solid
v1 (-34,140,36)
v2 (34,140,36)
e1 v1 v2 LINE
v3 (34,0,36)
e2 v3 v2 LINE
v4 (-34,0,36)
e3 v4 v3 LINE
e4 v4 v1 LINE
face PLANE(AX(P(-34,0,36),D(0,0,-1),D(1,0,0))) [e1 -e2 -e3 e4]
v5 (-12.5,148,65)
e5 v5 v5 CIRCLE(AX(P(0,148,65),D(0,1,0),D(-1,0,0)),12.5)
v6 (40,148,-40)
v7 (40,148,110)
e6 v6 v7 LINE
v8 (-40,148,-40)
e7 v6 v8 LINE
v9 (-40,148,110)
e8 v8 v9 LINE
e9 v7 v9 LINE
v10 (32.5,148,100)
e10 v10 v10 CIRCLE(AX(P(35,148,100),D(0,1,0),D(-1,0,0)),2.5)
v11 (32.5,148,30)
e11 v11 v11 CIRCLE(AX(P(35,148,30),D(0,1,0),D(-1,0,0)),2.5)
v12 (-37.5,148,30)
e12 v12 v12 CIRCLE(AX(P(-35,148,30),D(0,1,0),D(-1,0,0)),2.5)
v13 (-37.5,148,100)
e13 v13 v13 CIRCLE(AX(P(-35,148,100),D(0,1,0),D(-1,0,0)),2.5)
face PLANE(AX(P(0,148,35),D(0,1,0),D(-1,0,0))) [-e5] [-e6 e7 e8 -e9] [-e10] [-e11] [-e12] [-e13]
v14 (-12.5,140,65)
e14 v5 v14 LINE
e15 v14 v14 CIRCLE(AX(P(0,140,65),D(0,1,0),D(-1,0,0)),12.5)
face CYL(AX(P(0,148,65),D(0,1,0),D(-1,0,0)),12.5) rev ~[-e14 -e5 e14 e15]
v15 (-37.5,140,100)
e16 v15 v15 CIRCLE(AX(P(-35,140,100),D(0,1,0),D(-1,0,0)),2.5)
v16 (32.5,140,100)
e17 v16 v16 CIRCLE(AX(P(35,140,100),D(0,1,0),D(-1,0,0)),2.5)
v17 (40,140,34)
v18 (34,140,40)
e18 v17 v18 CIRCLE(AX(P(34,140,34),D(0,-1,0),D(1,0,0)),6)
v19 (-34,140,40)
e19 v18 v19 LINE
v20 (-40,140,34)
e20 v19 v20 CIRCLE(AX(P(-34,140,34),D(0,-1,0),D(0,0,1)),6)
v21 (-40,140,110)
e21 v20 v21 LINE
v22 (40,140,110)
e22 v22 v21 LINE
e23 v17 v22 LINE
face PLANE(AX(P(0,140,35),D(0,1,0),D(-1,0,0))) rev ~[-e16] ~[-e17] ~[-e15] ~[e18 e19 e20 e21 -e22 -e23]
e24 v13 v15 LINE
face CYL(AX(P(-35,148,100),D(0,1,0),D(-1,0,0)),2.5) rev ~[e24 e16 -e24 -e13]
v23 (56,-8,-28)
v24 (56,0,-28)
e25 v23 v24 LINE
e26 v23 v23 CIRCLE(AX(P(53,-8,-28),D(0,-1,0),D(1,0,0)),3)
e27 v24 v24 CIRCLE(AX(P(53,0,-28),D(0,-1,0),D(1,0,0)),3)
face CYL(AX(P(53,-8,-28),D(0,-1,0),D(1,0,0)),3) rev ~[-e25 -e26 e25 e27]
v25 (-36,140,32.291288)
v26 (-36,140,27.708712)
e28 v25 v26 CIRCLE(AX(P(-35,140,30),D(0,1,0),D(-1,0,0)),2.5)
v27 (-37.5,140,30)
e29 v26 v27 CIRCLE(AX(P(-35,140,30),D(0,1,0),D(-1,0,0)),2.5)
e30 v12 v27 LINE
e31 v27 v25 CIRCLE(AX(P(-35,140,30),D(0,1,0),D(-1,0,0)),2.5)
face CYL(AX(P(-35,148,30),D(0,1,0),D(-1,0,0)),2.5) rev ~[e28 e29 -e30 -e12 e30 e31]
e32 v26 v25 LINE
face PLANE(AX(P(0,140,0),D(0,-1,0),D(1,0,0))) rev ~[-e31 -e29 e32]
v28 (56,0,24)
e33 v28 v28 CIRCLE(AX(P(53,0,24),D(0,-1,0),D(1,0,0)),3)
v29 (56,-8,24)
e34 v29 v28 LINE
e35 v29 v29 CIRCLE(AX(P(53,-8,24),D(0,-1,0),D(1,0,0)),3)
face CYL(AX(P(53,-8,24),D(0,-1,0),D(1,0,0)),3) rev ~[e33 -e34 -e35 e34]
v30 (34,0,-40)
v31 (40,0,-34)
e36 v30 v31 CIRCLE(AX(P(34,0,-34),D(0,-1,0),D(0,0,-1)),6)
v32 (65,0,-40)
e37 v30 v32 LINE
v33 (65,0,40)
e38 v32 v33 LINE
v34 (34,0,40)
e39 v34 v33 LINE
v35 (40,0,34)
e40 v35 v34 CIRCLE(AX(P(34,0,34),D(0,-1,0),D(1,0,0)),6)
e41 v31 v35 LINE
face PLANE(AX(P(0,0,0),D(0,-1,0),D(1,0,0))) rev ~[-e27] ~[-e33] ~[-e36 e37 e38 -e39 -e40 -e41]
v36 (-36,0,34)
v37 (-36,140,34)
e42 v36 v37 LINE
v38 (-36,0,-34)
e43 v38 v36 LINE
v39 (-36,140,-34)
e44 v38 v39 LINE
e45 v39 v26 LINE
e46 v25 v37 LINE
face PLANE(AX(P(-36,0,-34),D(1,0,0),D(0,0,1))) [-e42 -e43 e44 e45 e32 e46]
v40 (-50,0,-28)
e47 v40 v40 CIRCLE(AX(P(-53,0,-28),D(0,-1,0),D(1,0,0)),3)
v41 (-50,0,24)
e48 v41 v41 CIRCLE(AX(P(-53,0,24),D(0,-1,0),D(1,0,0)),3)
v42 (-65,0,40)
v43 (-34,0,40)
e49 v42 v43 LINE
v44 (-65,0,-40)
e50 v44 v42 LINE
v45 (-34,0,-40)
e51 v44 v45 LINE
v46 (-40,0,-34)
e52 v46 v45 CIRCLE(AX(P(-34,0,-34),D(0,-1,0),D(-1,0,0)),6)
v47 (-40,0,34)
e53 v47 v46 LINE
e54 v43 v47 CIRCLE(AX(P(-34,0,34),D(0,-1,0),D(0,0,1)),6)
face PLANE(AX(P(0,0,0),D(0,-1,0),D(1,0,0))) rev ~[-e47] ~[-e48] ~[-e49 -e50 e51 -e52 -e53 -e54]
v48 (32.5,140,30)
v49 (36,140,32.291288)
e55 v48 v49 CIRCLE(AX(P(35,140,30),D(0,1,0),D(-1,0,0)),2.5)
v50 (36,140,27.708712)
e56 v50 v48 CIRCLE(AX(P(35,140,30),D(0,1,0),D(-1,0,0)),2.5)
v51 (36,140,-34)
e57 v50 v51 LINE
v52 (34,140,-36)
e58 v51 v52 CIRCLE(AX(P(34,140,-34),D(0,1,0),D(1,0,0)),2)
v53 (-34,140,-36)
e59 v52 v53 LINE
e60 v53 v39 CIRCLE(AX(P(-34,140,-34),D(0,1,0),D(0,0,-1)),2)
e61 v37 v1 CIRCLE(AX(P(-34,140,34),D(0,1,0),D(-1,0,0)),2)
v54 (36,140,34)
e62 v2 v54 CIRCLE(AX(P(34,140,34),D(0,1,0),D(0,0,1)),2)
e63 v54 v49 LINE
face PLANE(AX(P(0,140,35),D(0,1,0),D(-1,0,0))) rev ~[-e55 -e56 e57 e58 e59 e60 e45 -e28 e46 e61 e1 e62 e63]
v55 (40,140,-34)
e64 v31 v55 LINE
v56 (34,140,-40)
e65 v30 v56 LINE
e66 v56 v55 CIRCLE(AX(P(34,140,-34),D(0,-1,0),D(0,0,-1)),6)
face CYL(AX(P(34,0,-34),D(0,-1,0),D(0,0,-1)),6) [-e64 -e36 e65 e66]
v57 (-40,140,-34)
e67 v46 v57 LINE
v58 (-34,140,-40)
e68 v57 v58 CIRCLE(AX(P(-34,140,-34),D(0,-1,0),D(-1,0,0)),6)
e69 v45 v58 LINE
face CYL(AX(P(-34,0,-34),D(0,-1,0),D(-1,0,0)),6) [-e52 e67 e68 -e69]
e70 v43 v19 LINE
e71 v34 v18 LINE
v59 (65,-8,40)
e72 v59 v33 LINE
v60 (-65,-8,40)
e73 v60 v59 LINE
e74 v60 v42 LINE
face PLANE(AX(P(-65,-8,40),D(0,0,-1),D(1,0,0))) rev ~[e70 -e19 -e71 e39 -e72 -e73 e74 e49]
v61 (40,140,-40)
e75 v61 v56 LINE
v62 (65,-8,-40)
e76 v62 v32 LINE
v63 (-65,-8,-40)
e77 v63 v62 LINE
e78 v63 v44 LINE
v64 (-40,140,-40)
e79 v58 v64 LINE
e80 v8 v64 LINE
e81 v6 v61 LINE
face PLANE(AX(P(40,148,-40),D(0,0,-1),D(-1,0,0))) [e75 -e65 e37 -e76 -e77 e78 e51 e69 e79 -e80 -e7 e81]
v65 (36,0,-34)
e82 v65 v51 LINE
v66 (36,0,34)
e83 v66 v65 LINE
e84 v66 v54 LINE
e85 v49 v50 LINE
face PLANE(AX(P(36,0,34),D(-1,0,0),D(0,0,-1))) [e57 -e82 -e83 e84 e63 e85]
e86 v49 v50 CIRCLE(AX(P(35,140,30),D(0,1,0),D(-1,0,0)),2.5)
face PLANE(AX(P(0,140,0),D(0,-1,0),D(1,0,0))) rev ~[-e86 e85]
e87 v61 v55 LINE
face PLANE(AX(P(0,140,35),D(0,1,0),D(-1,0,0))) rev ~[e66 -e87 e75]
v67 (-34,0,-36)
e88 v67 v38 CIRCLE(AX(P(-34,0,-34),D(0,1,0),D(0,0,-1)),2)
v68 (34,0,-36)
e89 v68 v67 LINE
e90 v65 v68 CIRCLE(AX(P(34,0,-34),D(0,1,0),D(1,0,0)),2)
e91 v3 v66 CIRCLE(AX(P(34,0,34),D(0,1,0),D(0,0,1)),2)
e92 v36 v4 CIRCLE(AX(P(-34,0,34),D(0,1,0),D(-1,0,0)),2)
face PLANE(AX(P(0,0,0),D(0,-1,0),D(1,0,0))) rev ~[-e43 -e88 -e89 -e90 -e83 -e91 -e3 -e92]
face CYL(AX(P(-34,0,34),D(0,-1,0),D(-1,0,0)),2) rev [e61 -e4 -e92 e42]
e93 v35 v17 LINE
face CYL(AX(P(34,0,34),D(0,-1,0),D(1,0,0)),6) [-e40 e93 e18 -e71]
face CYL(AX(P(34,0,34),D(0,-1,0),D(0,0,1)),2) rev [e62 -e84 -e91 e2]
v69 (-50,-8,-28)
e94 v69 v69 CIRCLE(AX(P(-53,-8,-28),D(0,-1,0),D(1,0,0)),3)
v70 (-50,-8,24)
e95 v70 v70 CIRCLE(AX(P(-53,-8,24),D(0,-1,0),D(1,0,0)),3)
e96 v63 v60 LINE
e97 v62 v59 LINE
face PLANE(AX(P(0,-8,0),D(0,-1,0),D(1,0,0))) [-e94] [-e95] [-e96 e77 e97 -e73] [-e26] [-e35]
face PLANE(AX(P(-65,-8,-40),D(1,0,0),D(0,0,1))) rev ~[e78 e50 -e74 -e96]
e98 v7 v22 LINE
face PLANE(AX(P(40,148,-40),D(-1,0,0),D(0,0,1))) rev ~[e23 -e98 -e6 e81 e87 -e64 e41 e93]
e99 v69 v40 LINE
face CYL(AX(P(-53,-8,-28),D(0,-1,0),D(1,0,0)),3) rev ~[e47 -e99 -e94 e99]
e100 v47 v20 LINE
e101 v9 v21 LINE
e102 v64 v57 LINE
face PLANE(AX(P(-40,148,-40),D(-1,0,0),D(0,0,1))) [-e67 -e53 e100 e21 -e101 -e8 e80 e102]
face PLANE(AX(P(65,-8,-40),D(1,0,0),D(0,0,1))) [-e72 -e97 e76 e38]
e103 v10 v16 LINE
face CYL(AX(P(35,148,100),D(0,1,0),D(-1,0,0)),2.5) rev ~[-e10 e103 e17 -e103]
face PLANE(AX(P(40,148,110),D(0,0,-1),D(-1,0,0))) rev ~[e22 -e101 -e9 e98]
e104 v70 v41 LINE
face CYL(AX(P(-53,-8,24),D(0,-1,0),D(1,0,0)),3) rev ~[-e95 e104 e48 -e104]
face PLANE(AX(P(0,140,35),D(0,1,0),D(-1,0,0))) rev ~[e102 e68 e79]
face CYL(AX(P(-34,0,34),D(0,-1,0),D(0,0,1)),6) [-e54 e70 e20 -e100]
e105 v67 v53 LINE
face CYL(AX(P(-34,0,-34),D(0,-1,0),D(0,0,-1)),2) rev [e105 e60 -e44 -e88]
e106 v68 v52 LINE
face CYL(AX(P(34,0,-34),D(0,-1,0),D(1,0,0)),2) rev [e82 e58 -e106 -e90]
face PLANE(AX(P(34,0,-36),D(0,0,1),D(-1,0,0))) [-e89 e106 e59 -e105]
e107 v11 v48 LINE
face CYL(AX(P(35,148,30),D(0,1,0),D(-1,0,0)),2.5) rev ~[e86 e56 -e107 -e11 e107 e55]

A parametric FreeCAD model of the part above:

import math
import FreeCAD as App
import Part
import Sketcher
from FreeCAD import Vector

doc = App.newDocument("Part")
params = doc.addObject("Spreadsheet::Sheet", "Params")
for row, (alias, value) in enumerate([
    ("sketch1_radius", "6 mm"),
    ("sketch1_radius2", "2 mm"),
    ("sketch1_width", "68 mm"),
    ("pad1_length", "140 mm"),
    ("sketch2_diameter", "6 mm"),
    ("sketch2_width", "130 mm"),
    ("sketch2_height", "80 mm"),
    ("pad2_length", "8 mm"),
    ("sketch3_diameter", "5 mm"),
    ("sketch3_diameter2", "25 mm"),
    ("sketch3_width", "80 mm"),
    ("sketch3_height", "150 mm"),
    ("pad3_length", "8 mm"),
], start=1):
    params.set(f"A{row}", alias)
    params.set(f"B{row}", "=" + value)
    params.setAlias(f"B{row}", alias)

body = doc.addObject("PartDesign::Body", "Body")

sketch1 = body.newObject("Sketcher::SketchObject", "Sketch")
sketch1.AttachmentSupport = (doc.getObject("XZ_Plane"), [""])
sketch1.MapMode = "FlatFace"
sketch1.addGeometry(Part.ArcOfCircle(Part.Circle(Vector(34, 34, 0), Vector(0, 0, 1), 6), math.radians(0), math.radians(90)), False)
sketch1.addGeometry(Part.LineSegment(Vector(34, 40, 0), Vector(-34, 40, 0)), False)
sketch1.addGeometry(Part.ArcOfCircle(Part.Circle(Vector(-34, 34, 0), Vector(0, 0, 1), 6), math.radians(90), math.radians(180)), False)
sketch1.addGeometry(Part.LineSegment(Vector(-40, 34, 0), Vector(-40, -34, 0)), False)
sketch1.addGeometry(Part.ArcOfCircle(Part.Circle(Vector(-34, -34, 0), Vector(0, 0, 1), 6), math.radians(180), math.radians(270)), False)
sketch1.addGeometry(Part.LineSegment(Vector(-34, -40, 0), Vector(34, -40, 0)), False)
sketch1.addGeometry(Part.ArcOfCircle(Part.Circle(Vector(34, -34, 0), Vector(0, 0, 1), 6), math.radians(-90), math.radians(0)), False)
sketch1.addGeometry(Part.LineSegment(Vector(40, -34, 0), Vector(40, 34, 0)), False)
sketch1.addGeometry(Part.LineSegment(Vector(-36, -34, 0), Vector(-36, 34, 0)), False)
sketch1.addGeometry(Part.ArcOfCircle(Part.Circle(Vector(-34, 34, 0), Vector(0, 0, 1), 2), math.radians(90), math.radians(180)), False)
sketch1.addGeometry(Part.LineSegment(Vector(-34, 36, 0), Vector(34, 36, 0)), False)
sketch1.addGeometry(Part.ArcOfCircle(Part.Circle(Vector(34, 34, 0), Vector(0, 0, 1), 2), math.radians(0), math.radians(90)), False)
sketch1.addGeometry(Part.LineSegment(Vector(36, 34, 0), Vector(36, -34, 0)), False)
sketch1.addGeometry(Part.ArcOfCircle(Part.Circle(Vector(34, -34, 0), Vector(0, 0, 1), 2), math.radians(-90), math.radians(0)), False)
sketch1.addGeometry(Part.LineSegment(Vector(34, -36, 0), Vector(-34, -36, 0)), False)
sketch1.addGeometry(Part.ArcOfCircle(Part.Circle(Vector(-34, -34, 0), Vector(0, 0, 1), 2), math.radians(180), math.radians(270)), False)
sketch1.addConstraint(Sketcher.Constraint("Tangent", 0, 2, 1, 1))
sketch1.addConstraint(Sketcher.Constraint("Tangent", 1, 2, 2, 1))
sketch1.addConstraint(Sketcher.Constraint("Tangent", 2, 2, 3, 1))
sketch1.addConstraint(Sketcher.Constraint("Tangent", 3, 2, 4, 1))
sketch1.addConstraint(Sketcher.Constraint("Tangent", 4, 2, 5, 1))
sketch1.addConstraint(Sketcher.Constraint("Tangent", 5, 2, 6, 1))
sketch1.addConstraint(Sketcher.Constraint("Tangent", 6, 2, 7, 1))
sketch1.addConstraint(Sketcher.Constraint("Tangent", 7, 2, 0, 1))
sketch1.addConstraint(Sketcher.Constraint("Tangent", 8, 2, 9, 2))
sketch1.addConstraint(Sketcher.Constraint("Tangent", 9, 1, 10, 1))
sketch1.addConstraint(Sketcher.Constraint("Tangent", 10, 2, 11, 2))
sketch1.addConstraint(Sketcher.Constraint("Tangent", 11, 1, 12, 1))
sketch1.addConstraint(Sketcher.Constraint("Tangent", 12, 2, 13, 2))
sketch1.addConstraint(Sketcher.Constraint("Tangent", 13, 1, 14, 1))
sketch1.addConstraint(Sketcher.Constraint("Tangent", 14, 2, 15, 2))
sketch1.addConstraint(Sketcher.Constraint("Tangent", 15, 1, 8, 1))
sketch1.addConstraint(Sketcher.Constraint("Horizontal", 1))
sketch1.addConstraint(Sketcher.Constraint("Vertical", 3))
sketch1.addConstraint(Sketcher.Constraint("Horizontal", 5))
sketch1.addConstraint(Sketcher.Constraint("Vertical", 7))
sketch1.addConstraint(Sketcher.Constraint("Vertical", 8))
sketch1.addConstraint(Sketcher.Constraint("Horizontal", 10))
sketch1.addConstraint(Sketcher.Constraint("Vertical", 12))
sketch1.addConstraint(Sketcher.Constraint("Horizontal", 14))
sketch1.addConstraint(Sketcher.Constraint("Coincident", 9, 3, 2, 3))
sketch1.addConstraint(Sketcher.Constraint("Coincident", 11, 3, 0, 3))
sketch1.addConstraint(Sketcher.Constraint("Coincident", 13, 3, 6, 3))
sketch1.addConstraint(Sketcher.Constraint("Equal", 0, 2))
sketch1.addConstraint(Sketcher.Constraint("Equal", 2, 4))
sketch1.addConstraint(Sketcher.Constraint("Equal", 4, 6))
sketch1.addConstraint(Sketcher.Constraint("Equal", 13, 15))
sketch1.addConstraint(Sketcher.Constraint("Symmetric", 0, 3, 4, 3, -1, 1))
sketch1.addConstraint(Sketcher.Constraint("Equal", 14, 3))
sketch1.addConstraint(Sketcher.Constraint("Radius", 0, 6.0))
sketch1.addConstraint(Sketcher.Constraint("Radius", 9, 2.0))
sketch1.addConstraint(Sketcher.Constraint("DistanceX", 1, 2, 1, 1, 68.0))
sketch1.setExpression("Constraints[33]", "Params.sketch1_radius")
sketch1.setExpression("Constraints[34]", "Params.sketch1_radius2")
sketch1.setExpression("Constraints[35]", "Params.sketch1_width")
pad1 = body.newObject("PartDesign::Pad", "Pad")
pad1.Profile = sketch1
pad1.setExpression("Length", "Params.pad1_length")
pad1.Reversed = True

sketch2 = body.newObject("Sketcher::SketchObject", "Sketch001")
sketch2.AttachmentSupport = (doc.getObject("XZ_Plane"), [""])
sketch2.MapMode = "FlatFace"
sketch2.AttachmentOffset = App.Placement(Vector(0, 0, 8), App.Rotation())
sketch2.addGeometry(Part.LineSegment(Vector(-65, 40, 0), Vector(-65, -40, 0)), False)
sketch2.addGeometry(Part.LineSegment(Vector(-65, -40, 0), Vector(65, -40, 0)), False)
sketch2.addGeometry(Part.LineSegment(Vector(65, -40, 0), Vector(65, 40, 0)), False)
sketch2.addGeometry(Part.LineSegment(Vector(65, 40, 0), Vector(-65, 40, 0)), False)
sketch2.addGeometry(Part.Circle(Vector(-53, -28, 0), Vector(0, 0, 1), 3), False)
sketch2.addGeometry(Part.Circle(Vector(53, -28, 0), Vector(0, 0, 1), 3), False)
sketch2.addGeometry(Part.Circle(Vector(-53, 24, 0), Vector(0, 0, 1), 3), False)
sketch2.addGeometry(Part.Circle(Vector(53, 24, 0), Vector(0, 0, 1), 3), False)
sketch2.addConstraint(Sketcher.Constraint("Coincident", 0, 2, 1, 1))
sketch2.addConstraint(Sketcher.Constraint("Coincident", 1, 2, 2, 1))
sketch2.addConstraint(Sketcher.Constraint("Coincident", 2, 2, 3, 1))
sketch2.addConstraint(Sketcher.Constraint("Coincident", 3, 2, 0, 1))
sketch2.addConstraint(Sketcher.Constraint("Vertical", 0))
sketch2.addConstraint(Sketcher.Constraint("Horizontal", 1))
sketch2.addConstraint(Sketcher.Constraint("Vertical", 2))
sketch2.addConstraint(Sketcher.Constraint("Horizontal", 3))
sketch2.addConstraint(Sketcher.Constraint("Equal", 4, 5))
sketch2.addConstraint(Sketcher.Constraint("Equal", 5, 6))
sketch2.addConstraint(Sketcher.Constraint("Equal", 6, 7))
sketch2.addConstraint(Sketcher.Constraint("Symmetric", 0, 2, 2, 2, -1, 1))
sketch2.addConstraint(Sketcher.Constraint("Symmetric", 4, 3, 5, 3, -2))
sketch2.addConstraint(Sketcher.Constraint("Symmetric", 6, 3, 7, 3, -2))
sketch2.addConstraint(Sketcher.Constraint("Vertical", 4, 3, 6, 3))
sketch2.addConstraint(Sketcher.Constraint("Diameter", 4, 6.0))
sketch2.addConstraint(Sketcher.Constraint("DistanceX", 1, 1, 1, 2, 130.0))
sketch2.addConstraint(Sketcher.Constraint("DistanceY", 0, 2, 0, 1, 80.0))
sketch2.addConstraint(Sketcher.Constraint("DistanceX", 4, 3, -1, 1, 53.0))
sketch2.addConstraint(Sketcher.Constraint("DistanceY", 4, 3, -1, 1, 28.0))
sketch2.addConstraint(Sketcher.Constraint("DistanceY", -1, 1, 6, 3, 24.0))
sketch2.setExpression("Constraints[15]", "Params.sketch2_diameter")
sketch2.setExpression("Constraints[16]", "Params.sketch2_width")
sketch2.setExpression("Constraints[17]", "Params.sketch2_height")
pad2 = body.newObject("PartDesign::Pad", "Pad001")
pad2.Profile = sketch2
pad2.setExpression("Length", "Params.pad2_length")
pad2.Reversed = True

sketch3 = body.newObject("Sketcher::SketchObject", "Sketch002")
sketch3.AttachmentSupport = (doc.getObject("XZ_Plane"), [""])
sketch3.MapMode = "FlatFace"
sketch3.AttachmentOffset = App.Placement(Vector(0, 0, -148), App.Rotation())
sketch3.addGeometry(Part.LineSegment(Vector(40, 110, 0), Vector(40, -40, 0)), False)
sketch3.addGeometry(Part.LineSegment(Vector(40, -40, 0), Vector(-40, -40, 0)), False)
sketch3.addGeometry(Part.LineSegment(Vector(-40, -40, 0), Vector(-40, 110, 0)), False)
sketch3.addGeometry(Part.LineSegment(Vector(-40, 110, 0), Vector(40, 110, 0)), False)
sketch3.addGeometry(Part.Circle(Vector(35, 30, 0), Vector(0, 0, 1), 2.5), False)
sketch3.addGeometry(Part.Circle(Vector(-35, 30, 0), Vector(0, 0, 1), 2.5), False)
sketch3.addGeometry(Part.Circle(Vector(35, 100, 0), Vector(0, 0, 1), 2.5), False)
sketch3.addGeometry(Part.Circle(Vector(0, 65, 0), Vector(0, 0, 1), 12.5), False)
sketch3.addGeometry(Part.Circle(Vector(-35, 100, 0), Vector(0, 0, 1), 2.5), False)
sketch3.addConstraint(Sketcher.Constraint("Coincident", 0, 2, 1, 1))
sketch3.addConstraint(Sketcher.Constraint("Coincident", 1, 2, 2, 1))
sketch3.addConstraint(Sketcher.Constraint("Coincident", 2, 2, 3, 1))
sketch3.addConstraint(Sketcher.Constraint("Coincident", 3, 2, 0, 1))
sketch3.addConstraint(Sketcher.Constraint("Vertical", 0))
sketch3.addConstraint(Sketcher.Constraint("Horizontal", 1))
sketch3.addConstraint(Sketcher.Constraint("Vertical", 2))
sketch3.addConstraint(Sketcher.Constraint("Horizontal", 3))
sketch3.addConstraint(Sketcher.Constraint("Equal", 4, 5))
sketch3.addConstraint(Sketcher.Constraint("Equal", 5, 6))
sketch3.addConstraint(Sketcher.Constraint("Equal", 6, 8))
sketch3.addConstraint(Sketcher.Constraint("Symmetric", 4, 3, 5, 3, -2))
sketch3.addConstraint(Sketcher.Constraint("Symmetric", 6, 3, 8, 3, -2))
sketch3.addConstraint(Sketcher.Constraint("PointOnObject", 7, 3, -2))
sketch3.addConstraint(Sketcher.Constraint("Vertical", 4, 3, 6, 3))
sketch3.addConstraint(Sketcher.Constraint("Diameter", 4, 5.0))
sketch3.addConstraint(Sketcher.Constraint("Diameter", 7, 25.0))
sketch3.addConstraint(Sketcher.Constraint("DistanceX", 1, 2, 1, 1, 80.0))
sketch3.addConstraint(Sketcher.Constraint("DistanceY", 0, 2, 0, 1, 150.0))
sketch3.addConstraint(Sketcher.Constraint("DistanceX", -1, 1, 4, 3, 35.0))
sketch3.addConstraint(Sketcher.Constraint("DistanceY", -1, 1, 4, 3, 30.0))
sketch3.addConstraint(Sketcher.Constraint("DistanceY", -1, 1, 6, 3, 100.0))
sketch3.addConstraint(Sketcher.Constraint("DistanceY", -1, 1, 7, 3, 65.0))
sketch3.addConstraint(Sketcher.Constraint("DistanceX", -1, 1, 0, 2, 40.0))
sketch3.addConstraint(Sketcher.Constraint("DistanceY", 0, 2, -1, 1, 40.0))
sketch3.setExpression("Constraints[15]", "Params.sketch3_diameter")
sketch3.setExpression("Constraints[16]", "Params.sketch3_diameter2")
sketch3.setExpression("Constraints[17]", "Params.sketch3_width")
sketch3.setExpression("Constraints[18]", "Params.sketch3_height")
pad3 = body.newObject("PartDesign::Pad", "Pad002")
pad3.Profile = sketch3
pad3.setExpression("Length", "Params.pad3_length")

doc.recompute()
